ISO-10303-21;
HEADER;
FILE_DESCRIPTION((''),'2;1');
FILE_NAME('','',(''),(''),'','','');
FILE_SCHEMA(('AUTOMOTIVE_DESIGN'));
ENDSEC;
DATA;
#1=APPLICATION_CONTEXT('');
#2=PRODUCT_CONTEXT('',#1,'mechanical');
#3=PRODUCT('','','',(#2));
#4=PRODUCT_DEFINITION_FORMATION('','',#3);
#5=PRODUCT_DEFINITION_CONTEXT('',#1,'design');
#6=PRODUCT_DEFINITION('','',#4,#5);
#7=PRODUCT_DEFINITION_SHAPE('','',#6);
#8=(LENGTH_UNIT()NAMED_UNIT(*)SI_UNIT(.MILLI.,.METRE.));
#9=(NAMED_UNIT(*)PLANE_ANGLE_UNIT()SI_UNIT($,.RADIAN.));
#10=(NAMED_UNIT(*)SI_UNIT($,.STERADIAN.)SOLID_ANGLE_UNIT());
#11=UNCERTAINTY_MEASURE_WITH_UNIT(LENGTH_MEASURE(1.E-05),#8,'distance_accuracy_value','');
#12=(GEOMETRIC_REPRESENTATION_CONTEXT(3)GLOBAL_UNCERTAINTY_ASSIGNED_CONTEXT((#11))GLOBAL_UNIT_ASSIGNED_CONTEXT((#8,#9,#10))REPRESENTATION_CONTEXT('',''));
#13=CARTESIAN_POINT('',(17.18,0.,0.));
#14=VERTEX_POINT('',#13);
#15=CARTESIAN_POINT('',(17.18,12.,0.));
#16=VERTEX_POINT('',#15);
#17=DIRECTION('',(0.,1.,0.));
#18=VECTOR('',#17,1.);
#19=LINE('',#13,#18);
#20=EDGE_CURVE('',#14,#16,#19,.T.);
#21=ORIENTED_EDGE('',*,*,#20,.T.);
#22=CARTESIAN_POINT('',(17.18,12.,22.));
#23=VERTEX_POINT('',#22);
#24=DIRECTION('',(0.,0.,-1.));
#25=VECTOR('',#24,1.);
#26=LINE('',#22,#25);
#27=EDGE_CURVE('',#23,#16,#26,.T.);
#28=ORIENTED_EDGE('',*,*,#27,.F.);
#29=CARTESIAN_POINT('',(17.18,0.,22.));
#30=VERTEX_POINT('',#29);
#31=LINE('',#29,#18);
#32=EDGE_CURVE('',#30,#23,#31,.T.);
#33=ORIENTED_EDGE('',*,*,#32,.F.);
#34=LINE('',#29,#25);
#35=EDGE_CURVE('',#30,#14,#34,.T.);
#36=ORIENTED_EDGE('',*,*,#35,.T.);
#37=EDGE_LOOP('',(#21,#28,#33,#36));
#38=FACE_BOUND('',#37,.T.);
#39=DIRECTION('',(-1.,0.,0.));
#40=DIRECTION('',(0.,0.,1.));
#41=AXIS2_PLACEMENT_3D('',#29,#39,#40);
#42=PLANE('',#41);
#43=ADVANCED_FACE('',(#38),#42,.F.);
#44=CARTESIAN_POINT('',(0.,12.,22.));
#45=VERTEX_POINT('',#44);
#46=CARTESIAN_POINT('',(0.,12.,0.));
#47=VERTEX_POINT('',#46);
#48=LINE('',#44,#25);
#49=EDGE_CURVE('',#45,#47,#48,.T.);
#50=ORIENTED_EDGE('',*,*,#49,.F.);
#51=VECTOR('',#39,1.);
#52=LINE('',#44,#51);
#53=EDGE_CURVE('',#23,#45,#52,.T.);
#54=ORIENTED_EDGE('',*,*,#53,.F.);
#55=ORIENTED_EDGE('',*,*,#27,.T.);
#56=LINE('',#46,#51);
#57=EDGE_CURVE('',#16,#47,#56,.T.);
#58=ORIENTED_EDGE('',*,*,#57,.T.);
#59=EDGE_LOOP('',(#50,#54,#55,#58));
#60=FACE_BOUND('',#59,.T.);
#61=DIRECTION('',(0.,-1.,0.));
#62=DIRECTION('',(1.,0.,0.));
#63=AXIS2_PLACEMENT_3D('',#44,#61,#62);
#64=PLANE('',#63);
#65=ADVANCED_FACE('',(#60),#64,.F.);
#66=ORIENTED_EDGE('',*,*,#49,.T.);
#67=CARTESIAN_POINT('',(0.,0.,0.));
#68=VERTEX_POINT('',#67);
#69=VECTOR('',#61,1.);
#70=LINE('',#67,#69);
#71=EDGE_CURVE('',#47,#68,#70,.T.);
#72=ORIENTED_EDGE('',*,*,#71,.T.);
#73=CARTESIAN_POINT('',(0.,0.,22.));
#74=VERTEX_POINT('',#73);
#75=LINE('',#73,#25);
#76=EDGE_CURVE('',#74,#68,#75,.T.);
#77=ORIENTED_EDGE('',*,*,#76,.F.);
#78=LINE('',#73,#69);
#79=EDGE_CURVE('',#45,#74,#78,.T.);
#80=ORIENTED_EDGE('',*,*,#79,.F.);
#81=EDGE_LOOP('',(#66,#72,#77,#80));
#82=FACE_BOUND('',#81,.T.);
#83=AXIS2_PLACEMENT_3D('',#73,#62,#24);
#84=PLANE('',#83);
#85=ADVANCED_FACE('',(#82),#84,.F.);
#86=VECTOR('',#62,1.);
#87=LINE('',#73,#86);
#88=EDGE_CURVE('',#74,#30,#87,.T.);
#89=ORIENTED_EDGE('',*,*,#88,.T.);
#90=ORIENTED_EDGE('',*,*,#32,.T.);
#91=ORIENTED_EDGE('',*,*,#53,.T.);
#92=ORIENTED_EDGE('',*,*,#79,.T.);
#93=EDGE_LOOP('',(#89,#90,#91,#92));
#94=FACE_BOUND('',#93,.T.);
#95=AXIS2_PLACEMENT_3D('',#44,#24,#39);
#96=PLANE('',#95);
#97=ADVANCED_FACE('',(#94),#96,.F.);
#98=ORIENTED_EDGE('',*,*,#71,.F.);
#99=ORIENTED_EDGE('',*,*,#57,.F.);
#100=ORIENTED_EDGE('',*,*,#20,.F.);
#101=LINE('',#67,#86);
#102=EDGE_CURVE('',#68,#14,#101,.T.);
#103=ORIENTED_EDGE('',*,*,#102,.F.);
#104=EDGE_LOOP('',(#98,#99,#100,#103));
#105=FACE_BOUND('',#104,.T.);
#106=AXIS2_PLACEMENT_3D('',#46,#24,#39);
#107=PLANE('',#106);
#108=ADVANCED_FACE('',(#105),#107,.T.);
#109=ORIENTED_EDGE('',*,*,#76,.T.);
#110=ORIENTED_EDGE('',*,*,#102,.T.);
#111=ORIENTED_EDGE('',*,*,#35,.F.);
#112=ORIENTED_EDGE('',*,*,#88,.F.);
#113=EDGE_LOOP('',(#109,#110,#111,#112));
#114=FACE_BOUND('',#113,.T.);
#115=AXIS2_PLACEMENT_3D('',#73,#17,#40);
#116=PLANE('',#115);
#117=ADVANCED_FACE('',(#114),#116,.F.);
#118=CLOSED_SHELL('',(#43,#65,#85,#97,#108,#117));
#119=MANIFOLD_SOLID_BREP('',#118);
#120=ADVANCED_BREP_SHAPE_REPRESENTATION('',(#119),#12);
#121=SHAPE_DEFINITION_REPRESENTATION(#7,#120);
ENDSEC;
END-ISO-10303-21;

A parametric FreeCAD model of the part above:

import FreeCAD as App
import Part
import Sketcher
from FreeCAD import Vector

doc = App.newDocument("Part")
params = doc.addObject("Spreadsheet::Sheet", "Params")
for row, (alias, value) in enumerate([
    ("sketch1_height", "12 mm"),
    ("sketch1_width", "17.18 mm"),
    ("pad1_length", "22 mm"),
], start=1):
    params.set(f"A{row}", alias)
    params.set(f"B{row}", "=" + value)
    params.setAlias(f"B{row}", alias)

body = doc.addObject("PartDesign::Body", "Body")

sketch1 = body.newObject("Sketcher::SketchObject", "Sketch")
sketch1.AttachmentSupport = (doc.getObject("XY_Plane"), [""])
sketch1.MapMode = "FlatFace"
sketch1.addGeometry([
    Part.LineSegment(Vector(0, 12, 0), Vector(0, 0, 0)),
    Part.LineSegment(Vector(0, 0, 0), Vector(17, 0, 0)),
    Part.LineSegment(Vector(17, 0, 0), Vector(17, 12, 0)),
    Part.LineSegment(Vector(17, 12, 0), Vector(0, 12, 0)),
], False)
sketch1.addConstraint([
    Sketcher.Constraint("Coincident", 0, 2, 1, 1),
    Sketcher.Constraint("Coincident", 1, 2, 2, 1),
    Sketcher.Constraint("Coincident", 2, 2, 3, 1),
    Sketcher.Constraint("Coincident", 3, 2, 0, 1),
    Sketcher.Constraint("Vertical", 0),
    Sketcher.Constraint("Horizontal", 1),
    Sketcher.Constraint("Vertical", 2),
    Sketcher.Constraint("Horizontal", 3),
    Sketcher.Constraint("Coincident", 0, 2, -1, 1),
    Sketcher.Constraint("DistanceY", 0, 2, 0, 1, 12.0),
    Sketcher.Constraint("DistanceX", 1, 1, 1, 2, 17.18),
])
sketch1.setExpression("Constraints[9]", "Params.sketch1_height")
sketch1.setExpression("Constraints[10]", "Params.sketch1_width")
pad1 = body.newObject("PartDesign::Pad", "Pad")
pad1.Profile = sketch1
pad1.setExpression("Length", "Params.pad1_length")

doc.recompute()
